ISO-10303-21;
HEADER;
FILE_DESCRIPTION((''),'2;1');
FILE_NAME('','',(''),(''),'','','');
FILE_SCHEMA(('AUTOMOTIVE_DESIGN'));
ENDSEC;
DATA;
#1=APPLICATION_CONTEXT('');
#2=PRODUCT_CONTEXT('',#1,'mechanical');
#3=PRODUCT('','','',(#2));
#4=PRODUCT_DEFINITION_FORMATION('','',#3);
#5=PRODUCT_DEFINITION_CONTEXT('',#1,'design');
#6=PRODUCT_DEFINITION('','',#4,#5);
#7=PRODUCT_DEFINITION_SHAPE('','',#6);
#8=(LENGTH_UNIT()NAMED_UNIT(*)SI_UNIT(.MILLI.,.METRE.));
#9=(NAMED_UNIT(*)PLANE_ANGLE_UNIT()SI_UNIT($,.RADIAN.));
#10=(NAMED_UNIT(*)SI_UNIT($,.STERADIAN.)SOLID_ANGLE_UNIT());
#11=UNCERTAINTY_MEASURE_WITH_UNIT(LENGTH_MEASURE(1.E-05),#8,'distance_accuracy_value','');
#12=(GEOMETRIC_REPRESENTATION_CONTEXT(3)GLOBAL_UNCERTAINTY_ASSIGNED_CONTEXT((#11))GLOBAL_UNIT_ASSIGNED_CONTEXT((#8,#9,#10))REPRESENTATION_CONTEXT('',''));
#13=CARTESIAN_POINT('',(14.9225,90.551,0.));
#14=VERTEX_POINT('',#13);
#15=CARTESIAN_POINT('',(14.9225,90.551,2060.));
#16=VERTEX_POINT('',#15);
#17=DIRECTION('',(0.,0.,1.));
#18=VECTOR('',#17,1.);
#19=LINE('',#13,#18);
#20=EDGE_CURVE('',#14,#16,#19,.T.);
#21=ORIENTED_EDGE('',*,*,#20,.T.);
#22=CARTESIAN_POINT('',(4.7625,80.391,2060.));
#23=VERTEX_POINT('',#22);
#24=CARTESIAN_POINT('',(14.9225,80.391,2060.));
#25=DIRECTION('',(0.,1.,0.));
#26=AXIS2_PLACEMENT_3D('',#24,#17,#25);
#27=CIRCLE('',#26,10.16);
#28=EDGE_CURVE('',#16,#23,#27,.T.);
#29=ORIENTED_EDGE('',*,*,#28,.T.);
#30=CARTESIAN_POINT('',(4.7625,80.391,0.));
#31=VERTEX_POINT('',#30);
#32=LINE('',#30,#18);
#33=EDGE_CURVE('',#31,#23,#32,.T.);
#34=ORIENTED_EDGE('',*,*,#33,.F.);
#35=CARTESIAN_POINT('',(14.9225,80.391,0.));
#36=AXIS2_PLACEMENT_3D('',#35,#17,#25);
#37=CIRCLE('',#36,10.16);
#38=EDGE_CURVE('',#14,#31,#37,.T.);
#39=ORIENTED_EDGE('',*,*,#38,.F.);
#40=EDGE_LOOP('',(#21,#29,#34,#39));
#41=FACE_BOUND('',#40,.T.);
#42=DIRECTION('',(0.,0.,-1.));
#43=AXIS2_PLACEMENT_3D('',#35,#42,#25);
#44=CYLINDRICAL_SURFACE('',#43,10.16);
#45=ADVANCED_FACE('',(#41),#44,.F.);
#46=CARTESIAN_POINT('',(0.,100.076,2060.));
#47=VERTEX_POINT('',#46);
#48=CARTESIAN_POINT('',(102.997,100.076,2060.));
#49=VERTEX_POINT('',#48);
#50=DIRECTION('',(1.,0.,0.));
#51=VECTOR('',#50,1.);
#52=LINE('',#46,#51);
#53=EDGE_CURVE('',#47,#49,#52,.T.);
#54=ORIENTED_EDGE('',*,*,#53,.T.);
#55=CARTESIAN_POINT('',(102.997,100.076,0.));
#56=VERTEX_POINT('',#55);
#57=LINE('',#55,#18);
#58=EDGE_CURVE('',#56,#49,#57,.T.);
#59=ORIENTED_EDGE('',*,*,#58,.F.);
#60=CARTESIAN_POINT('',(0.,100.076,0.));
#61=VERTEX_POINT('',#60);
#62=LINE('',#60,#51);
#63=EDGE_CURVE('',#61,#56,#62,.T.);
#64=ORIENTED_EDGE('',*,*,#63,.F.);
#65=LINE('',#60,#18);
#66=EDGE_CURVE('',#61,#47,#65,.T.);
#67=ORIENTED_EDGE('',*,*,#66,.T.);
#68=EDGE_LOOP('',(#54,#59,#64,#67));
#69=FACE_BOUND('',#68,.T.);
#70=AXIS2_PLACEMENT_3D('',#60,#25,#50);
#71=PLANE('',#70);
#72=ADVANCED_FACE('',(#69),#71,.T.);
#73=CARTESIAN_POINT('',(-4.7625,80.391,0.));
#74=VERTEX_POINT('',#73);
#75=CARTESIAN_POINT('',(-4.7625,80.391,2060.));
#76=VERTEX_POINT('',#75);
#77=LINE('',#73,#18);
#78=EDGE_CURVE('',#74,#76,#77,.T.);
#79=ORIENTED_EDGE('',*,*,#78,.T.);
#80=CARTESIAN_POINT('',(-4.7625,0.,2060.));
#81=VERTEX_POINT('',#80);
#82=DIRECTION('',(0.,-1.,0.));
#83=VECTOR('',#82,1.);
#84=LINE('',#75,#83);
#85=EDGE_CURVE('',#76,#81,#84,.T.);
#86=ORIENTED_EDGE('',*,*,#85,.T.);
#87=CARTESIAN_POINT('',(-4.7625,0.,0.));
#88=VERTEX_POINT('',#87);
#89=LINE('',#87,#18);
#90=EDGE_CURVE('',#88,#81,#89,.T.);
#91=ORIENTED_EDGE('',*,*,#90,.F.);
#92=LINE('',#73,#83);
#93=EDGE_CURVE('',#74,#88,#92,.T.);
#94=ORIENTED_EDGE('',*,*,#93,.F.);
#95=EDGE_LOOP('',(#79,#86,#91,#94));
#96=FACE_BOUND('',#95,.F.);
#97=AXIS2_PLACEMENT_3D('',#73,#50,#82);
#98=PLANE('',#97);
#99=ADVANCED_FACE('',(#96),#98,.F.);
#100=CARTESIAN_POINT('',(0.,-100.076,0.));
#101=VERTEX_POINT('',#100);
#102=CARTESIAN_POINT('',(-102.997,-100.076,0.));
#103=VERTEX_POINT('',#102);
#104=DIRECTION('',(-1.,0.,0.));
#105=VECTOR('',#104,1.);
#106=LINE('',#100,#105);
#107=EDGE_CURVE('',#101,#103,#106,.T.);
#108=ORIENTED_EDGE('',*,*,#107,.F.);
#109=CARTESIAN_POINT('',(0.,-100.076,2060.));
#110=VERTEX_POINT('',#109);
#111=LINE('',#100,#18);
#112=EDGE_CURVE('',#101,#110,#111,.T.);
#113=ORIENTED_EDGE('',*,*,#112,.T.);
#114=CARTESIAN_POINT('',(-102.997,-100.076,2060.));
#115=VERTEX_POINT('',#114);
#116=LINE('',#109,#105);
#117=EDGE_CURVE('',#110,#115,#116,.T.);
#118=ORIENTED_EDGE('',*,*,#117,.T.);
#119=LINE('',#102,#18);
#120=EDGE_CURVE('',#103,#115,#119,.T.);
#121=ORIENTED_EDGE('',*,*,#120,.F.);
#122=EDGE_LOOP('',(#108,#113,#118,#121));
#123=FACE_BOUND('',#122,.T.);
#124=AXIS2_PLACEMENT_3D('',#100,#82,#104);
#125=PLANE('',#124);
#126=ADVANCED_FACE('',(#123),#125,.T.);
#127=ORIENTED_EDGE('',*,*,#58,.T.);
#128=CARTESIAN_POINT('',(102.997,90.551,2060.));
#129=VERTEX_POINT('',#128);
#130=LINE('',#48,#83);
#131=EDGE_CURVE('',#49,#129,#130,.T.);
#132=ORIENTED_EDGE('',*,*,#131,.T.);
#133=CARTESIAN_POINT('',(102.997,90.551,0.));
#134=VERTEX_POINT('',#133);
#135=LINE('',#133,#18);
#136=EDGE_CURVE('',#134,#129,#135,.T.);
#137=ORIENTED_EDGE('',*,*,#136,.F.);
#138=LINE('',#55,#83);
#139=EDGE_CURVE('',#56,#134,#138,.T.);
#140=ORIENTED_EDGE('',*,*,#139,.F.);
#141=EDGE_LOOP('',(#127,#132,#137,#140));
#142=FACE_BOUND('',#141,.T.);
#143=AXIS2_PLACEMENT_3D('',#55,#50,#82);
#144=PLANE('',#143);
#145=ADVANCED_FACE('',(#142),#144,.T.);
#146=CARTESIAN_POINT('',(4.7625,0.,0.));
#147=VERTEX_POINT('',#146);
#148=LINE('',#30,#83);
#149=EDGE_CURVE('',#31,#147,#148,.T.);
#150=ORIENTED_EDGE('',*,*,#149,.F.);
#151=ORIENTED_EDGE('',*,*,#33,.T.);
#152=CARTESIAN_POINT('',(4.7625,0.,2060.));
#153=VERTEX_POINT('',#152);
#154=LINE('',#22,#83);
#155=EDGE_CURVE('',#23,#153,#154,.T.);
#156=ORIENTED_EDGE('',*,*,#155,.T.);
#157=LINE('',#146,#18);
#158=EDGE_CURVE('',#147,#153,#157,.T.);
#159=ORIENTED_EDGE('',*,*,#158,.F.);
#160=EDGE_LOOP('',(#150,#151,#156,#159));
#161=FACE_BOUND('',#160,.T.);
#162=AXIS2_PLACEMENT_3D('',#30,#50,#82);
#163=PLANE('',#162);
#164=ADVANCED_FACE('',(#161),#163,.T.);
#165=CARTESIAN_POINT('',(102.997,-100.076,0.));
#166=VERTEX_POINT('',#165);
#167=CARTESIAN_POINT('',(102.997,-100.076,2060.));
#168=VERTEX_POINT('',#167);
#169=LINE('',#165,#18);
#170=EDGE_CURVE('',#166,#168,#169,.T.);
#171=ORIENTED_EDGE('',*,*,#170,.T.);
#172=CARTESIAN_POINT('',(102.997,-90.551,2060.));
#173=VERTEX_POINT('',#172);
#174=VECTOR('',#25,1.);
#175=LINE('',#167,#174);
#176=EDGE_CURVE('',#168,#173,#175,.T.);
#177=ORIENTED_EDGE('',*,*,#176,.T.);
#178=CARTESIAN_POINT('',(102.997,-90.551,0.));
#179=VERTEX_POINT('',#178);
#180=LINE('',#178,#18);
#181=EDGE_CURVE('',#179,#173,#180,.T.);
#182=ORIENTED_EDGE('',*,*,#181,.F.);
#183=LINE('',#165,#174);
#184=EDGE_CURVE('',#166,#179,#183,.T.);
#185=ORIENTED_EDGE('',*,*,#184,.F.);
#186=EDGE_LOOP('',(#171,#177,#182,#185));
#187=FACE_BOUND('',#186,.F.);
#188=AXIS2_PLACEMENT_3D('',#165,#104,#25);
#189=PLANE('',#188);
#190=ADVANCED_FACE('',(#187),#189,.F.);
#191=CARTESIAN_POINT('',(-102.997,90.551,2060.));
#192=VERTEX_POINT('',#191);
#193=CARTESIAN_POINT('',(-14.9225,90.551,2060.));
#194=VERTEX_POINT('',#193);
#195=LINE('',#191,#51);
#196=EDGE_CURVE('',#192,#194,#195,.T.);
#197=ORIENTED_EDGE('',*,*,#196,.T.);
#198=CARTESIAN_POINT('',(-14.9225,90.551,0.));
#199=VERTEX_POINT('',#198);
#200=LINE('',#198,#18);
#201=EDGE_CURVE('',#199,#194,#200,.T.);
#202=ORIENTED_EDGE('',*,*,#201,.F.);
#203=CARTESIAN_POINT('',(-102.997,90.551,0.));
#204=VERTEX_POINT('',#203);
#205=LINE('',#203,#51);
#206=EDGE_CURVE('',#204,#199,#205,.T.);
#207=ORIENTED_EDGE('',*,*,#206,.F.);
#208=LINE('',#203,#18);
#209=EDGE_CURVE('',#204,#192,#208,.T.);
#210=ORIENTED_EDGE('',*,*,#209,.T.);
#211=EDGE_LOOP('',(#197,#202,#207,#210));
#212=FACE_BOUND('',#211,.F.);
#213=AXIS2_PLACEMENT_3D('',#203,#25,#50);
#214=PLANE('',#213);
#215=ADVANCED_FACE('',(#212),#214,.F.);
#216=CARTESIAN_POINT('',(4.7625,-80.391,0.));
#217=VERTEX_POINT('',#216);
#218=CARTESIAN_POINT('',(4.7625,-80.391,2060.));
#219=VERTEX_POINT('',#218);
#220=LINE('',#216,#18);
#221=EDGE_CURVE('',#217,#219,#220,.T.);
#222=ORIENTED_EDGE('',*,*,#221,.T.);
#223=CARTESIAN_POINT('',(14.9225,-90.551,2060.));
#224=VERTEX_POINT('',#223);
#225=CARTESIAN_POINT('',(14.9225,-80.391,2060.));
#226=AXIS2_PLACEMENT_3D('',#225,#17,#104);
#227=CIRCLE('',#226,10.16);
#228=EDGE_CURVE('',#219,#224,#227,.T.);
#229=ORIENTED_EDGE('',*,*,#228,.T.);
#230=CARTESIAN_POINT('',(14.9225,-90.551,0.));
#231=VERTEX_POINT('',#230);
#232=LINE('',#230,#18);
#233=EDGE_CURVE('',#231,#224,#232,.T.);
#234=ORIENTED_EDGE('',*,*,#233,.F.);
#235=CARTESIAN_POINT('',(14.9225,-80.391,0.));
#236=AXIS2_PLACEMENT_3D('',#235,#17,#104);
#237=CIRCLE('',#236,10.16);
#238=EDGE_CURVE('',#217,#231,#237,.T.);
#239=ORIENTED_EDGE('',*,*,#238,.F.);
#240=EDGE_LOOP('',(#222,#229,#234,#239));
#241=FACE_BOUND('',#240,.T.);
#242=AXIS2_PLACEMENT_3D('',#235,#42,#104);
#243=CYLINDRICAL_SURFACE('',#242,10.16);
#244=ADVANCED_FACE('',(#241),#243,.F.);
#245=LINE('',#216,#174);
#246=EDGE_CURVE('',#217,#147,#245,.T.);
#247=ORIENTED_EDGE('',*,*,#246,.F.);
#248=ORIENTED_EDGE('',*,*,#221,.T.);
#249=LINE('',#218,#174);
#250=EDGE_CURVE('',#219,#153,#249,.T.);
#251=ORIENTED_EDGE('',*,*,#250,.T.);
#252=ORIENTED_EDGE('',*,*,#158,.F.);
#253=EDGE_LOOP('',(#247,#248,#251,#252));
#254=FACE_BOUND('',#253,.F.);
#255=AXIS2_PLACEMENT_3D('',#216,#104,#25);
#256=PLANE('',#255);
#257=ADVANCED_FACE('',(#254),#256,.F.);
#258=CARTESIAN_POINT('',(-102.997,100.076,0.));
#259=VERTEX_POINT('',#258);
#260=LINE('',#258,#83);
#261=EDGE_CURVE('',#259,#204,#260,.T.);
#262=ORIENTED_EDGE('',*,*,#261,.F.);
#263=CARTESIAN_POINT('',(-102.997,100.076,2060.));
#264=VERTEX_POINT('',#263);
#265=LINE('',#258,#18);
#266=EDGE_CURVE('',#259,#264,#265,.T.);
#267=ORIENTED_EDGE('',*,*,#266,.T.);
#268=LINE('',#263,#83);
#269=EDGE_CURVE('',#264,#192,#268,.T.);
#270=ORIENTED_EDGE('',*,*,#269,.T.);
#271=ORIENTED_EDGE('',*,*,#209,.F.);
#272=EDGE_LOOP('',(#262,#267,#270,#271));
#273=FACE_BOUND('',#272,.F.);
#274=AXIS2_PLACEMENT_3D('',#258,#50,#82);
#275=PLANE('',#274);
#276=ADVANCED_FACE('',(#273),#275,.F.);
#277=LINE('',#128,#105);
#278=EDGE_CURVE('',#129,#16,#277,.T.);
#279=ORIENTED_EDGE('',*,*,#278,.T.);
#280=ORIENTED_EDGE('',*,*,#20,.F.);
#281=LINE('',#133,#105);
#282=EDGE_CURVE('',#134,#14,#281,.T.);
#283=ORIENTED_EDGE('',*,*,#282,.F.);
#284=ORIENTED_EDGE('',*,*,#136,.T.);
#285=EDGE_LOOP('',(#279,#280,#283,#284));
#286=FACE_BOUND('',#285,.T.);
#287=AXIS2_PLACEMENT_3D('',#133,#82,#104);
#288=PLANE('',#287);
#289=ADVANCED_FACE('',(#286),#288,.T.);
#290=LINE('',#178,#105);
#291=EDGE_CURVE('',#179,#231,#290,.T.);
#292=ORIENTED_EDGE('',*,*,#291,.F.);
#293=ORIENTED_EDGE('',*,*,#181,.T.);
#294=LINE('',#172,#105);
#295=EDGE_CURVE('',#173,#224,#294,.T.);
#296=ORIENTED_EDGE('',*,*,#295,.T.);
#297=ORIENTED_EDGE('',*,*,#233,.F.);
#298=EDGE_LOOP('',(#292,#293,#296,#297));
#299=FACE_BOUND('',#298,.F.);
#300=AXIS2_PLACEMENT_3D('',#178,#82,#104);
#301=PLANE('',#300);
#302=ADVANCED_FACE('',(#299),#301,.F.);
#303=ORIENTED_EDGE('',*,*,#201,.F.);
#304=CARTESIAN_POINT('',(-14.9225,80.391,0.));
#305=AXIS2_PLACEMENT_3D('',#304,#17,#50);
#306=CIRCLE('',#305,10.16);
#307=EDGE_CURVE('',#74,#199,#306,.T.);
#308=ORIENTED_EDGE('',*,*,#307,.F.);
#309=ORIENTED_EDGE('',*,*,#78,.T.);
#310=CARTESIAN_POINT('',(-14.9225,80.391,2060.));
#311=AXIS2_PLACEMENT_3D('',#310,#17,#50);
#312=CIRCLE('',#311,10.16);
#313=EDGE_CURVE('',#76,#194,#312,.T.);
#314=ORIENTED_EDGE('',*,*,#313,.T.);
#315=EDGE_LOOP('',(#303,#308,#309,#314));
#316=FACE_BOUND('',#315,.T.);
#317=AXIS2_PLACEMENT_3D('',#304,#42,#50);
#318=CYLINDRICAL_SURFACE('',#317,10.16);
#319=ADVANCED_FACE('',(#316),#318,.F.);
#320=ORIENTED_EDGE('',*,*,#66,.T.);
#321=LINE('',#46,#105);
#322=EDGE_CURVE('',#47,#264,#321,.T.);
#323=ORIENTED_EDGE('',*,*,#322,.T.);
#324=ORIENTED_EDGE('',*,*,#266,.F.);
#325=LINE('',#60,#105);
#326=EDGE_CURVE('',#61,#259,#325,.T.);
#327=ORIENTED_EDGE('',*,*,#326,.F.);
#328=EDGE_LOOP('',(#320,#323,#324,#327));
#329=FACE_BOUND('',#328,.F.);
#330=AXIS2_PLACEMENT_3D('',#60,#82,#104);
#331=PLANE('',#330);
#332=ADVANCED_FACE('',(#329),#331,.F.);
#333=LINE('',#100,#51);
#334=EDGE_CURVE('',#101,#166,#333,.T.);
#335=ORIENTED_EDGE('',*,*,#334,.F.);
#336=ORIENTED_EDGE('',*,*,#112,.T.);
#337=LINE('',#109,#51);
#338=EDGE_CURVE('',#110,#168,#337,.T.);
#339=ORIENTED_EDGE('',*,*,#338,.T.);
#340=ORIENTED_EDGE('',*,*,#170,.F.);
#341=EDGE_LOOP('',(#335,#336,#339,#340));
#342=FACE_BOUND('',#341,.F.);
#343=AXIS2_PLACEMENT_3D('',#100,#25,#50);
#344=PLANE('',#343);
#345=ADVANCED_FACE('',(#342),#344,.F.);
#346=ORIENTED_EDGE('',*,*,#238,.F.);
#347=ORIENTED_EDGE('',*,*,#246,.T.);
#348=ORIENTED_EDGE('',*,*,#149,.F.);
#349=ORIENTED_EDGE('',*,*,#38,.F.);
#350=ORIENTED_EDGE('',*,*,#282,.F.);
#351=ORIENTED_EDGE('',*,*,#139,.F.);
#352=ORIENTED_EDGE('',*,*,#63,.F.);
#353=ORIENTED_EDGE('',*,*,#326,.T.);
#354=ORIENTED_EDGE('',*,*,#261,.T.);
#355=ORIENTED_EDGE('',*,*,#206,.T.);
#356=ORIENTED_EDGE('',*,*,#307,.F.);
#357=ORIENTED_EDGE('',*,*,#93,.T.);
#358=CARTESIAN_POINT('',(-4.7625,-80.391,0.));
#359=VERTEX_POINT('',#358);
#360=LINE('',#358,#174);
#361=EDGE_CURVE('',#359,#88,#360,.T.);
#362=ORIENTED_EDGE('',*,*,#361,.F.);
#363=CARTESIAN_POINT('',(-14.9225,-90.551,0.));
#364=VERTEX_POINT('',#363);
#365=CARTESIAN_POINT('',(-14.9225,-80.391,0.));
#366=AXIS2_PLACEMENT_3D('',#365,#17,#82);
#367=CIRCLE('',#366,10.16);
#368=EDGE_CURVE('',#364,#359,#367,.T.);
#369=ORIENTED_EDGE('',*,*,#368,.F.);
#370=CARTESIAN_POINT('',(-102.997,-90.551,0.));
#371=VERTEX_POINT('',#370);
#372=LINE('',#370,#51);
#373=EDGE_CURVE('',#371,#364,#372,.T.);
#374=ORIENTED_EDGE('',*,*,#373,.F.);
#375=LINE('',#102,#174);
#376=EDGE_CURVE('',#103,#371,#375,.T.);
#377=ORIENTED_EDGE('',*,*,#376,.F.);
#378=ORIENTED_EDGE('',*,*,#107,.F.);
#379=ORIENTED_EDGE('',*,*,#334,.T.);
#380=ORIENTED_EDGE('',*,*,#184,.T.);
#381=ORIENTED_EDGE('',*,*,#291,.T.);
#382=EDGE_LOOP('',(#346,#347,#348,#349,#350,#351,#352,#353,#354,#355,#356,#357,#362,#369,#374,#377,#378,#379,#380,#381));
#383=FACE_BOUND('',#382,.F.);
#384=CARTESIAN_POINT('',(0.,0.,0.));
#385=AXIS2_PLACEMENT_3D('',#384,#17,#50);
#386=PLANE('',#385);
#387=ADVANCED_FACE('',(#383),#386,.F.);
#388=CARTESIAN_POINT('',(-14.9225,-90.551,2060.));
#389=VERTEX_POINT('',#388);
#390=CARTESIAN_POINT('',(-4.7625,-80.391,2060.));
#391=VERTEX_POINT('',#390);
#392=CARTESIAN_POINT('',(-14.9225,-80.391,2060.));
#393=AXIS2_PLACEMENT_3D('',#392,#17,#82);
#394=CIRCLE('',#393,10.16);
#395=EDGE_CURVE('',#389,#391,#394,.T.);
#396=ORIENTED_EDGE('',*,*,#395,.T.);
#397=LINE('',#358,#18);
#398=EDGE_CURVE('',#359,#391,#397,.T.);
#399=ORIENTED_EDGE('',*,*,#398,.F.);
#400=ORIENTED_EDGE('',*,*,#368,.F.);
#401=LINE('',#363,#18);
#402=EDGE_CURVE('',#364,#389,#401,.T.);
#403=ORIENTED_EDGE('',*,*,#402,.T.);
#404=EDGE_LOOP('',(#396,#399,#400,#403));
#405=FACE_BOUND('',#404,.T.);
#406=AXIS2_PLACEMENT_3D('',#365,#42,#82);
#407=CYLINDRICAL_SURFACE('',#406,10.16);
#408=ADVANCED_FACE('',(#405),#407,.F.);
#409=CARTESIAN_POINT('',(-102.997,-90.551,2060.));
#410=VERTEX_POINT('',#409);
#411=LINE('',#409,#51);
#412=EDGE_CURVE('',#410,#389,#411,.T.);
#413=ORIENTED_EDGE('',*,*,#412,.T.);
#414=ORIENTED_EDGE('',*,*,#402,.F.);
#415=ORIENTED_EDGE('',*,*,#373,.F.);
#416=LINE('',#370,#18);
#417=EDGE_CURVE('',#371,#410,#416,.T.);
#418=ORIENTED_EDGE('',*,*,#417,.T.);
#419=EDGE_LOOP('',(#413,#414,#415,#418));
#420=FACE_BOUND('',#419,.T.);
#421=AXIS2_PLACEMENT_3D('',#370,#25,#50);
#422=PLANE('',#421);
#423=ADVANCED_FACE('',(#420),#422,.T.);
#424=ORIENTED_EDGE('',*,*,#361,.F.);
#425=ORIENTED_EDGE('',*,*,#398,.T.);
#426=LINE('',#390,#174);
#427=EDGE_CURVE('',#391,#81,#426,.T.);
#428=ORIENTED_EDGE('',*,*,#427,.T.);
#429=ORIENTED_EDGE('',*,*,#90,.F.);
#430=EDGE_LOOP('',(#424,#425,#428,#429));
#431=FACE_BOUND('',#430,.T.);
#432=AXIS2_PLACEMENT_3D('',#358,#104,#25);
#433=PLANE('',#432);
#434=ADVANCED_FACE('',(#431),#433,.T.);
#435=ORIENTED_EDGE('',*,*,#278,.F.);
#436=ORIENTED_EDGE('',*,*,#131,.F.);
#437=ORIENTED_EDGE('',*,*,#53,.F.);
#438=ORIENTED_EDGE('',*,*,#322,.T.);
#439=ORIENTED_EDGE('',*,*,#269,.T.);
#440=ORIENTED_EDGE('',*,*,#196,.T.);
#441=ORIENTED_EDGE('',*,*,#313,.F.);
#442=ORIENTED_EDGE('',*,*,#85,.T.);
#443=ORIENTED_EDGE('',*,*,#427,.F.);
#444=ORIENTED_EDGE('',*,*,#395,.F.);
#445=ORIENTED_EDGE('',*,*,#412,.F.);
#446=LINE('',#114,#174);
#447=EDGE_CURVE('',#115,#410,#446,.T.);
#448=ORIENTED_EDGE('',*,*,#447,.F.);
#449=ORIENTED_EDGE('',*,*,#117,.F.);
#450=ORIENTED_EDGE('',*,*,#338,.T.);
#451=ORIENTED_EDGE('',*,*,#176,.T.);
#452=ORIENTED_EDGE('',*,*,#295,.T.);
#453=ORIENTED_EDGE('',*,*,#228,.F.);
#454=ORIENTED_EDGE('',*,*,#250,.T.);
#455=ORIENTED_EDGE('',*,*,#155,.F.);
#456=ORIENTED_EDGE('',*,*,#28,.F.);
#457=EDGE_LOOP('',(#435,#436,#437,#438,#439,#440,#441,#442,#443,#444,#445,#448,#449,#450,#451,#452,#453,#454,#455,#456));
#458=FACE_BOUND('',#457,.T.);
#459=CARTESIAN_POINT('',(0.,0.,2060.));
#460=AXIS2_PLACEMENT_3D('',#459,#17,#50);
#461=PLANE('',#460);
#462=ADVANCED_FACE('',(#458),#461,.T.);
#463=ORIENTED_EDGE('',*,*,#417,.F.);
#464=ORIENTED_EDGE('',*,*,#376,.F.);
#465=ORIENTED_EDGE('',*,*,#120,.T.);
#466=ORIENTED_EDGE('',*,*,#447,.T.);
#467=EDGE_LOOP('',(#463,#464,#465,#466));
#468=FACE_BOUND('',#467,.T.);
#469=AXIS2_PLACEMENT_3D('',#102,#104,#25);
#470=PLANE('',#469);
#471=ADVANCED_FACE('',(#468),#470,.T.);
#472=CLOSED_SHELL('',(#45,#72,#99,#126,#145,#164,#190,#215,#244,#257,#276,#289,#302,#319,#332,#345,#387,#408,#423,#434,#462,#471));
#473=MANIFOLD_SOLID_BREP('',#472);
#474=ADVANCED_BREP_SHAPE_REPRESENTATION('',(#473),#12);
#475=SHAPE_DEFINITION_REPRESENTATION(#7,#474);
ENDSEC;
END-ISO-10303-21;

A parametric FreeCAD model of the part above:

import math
import FreeCAD as App
import Part
import Sketcher
from FreeCAD import Vector
Q = App.Units.Quantity

doc = App.newDocument("Part")
body = doc.addObject("PartDesign::Body", "Body")

# Sketch on XY plane
sketch1 = body.newObject("Sketcher::SketchObject", "Sketch")
sketch1.AttachmentSupport = (doc.getObject("XY_Plane"), [""])
sketch1.MapMode = "FlatFace"
sketch1.addGeometry([
    Part.LineSegment(Vector(-102.997, -90.551, 0), Vector(-102.997, -100.076, 0)),  # 0
    Part.LineSegment(Vector(-102.997, -100.076, 0), Vector(102.997, -100.076, 0)),  # 1
    Part.LineSegment(Vector(102.997, -100.076, 0), Vector(102.997, -90.551, 0)),  # 2
    Part.LineSegment(Vector(102.997, -90.551, 0), Vector(14.9225, -90.551, 0)),  # 3
    Part.ArcOfCircle(Part.Circle(Vector(14.9225, -80.391, 0), Vector(0, 0, 1), 10.16), math.radians(180), math.radians(270)),  # 4
    Part.LineSegment(Vector(4.7625, -80.391, 0), Vector(4.7625, 80.391, 0)),  # 5
    Part.ArcOfCircle(Part.Circle(Vector(14.9225, 80.391, 0), Vector(0, 0, 1), 10.16), math.radians(90), math.radians(180)),  # 6
    Part.LineSegment(Vector(14.9225, 90.551, 0), Vector(102.997, 90.551, 0)),  # 7
    Part.LineSegment(Vector(102.997, 90.551, 0), Vector(102.997, 100.076, 0)),  # 8
    Part.LineSegment(Vector(102.997, 100.076, 0), Vector(-102.997, 100.076, 0)),  # 9
    Part.LineSegment(Vector(-102.997, 100.076, 0), Vector(-102.997, 90.551, 0)),  # 10
    Part.LineSegment(Vector(-102.997, 90.551, 0), Vector(-14.9225, 90.551, 0)),  # 11
    Part.ArcOfCircle(Part.Circle(Vector(-14.9225, 80.391, 0), Vector(0, 0, 1), 10.16), math.radians(0), math.radians(90)),  # 12
    Part.LineSegment(Vector(-4.7625, 80.391, 0), Vector(-4.7625, -80.391, 0)),  # 13
    Part.ArcOfCircle(Part.Circle(Vector(-14.9225, -80.391, 0), Vector(0, 0, 1), 10.16), math.radians(-90), math.radians(0)),  # 14
    Part.LineSegment(Vector(-14.9225, -90.551, 0), Vector(-102.997, -90.551, 0)),  # 15
], False)
sketch1.addConstraint([
    Sketcher.Constraint("Coincident", 0, 2, 1, 1),
    Sketcher.Constraint("Coincident", 1, 2, 2, 1),
    Sketcher.Constraint("Coincident", 2, 2, 3, 1),
    Sketcher.Constraint("Tangent", 3, 2, 4, 2),
    Sketcher.Constraint("Tangent", 4, 1, 5, 1),
    Sketcher.Constraint("Tangent", 5, 2, 6, 2),
    Sketcher.Constraint("Tangent", 6, 1, 7, 1),
    Sketcher.Constraint("Coincident", 7, 2, 8, 1),
    Sketcher.Constraint("Coincident", 8, 2, 9, 1),
    Sketcher.Constraint("Coincident", 9, 2, 10, 1),
    Sketcher.Constraint("Coincident", 10, 2, 11, 1),
    Sketcher.Constraint("Tangent", 11, 2, 12, 2),
    Sketcher.Constraint("Tangent", 12, 1, 13, 1),
    Sketcher.Constraint("Tangent", 13, 2, 14, 2),
    Sketcher.Constraint("Tangent", 14, 1, 15, 1),
    Sketcher.Constraint("Coincident", 15, 2, 0, 1),
    Sketcher.Constraint("Vertical", 0),
    Sketcher.Constraint("Horizontal", 1),
    Sketcher.Constraint("Vertical", 2),
    Sketcher.Constraint("Horizontal", 3),
    Sketcher.Constraint("Vertical", 5),
    Sketcher.Constraint("Horizontal", 7),
    Sketcher.Constraint("Vertical", 8),
    Sketcher.Constraint("Horizontal", 9),
    Sketcher.Constraint("Vertical", 10),
    Sketcher.Constraint("Horizontal", 11),
    Sketcher.Constraint("Vertical", 13),
    Sketcher.Constraint("Horizontal", 15),
    Sketcher.Constraint("Equal", 4, 6),
    Sketcher.Constraint("Equal", 6, 12),
    Sketcher.Constraint("Equal", 12, 14),
    Sketcher.Constraint("Symmetric", 4, 3, 12, 3, -1, 1),
    Sketcher.Constraint("Symmetric", 0, 2, 8, 2, -1, 1),
    Sketcher.Constraint("Symmetric", 7, 2, 10, 2, -2),
    Sketcher.Constraint("Symmetric", 2, 2, 15, 2, -2),
    Sketcher.Constraint("Radius", 4, Q("0.4 in")),
    Sketcher.Constraint("DistanceY", 0, 2, 0, 1, Q("0.375 in")),
    Sketcher.Constraint("DistanceY", 0, 2, -1, 1, Q("3.94 in")),
    Sketcher.Constraint("DistanceX", 0, 2, -1, 1, Q("4.055 in")),
    Sketcher.Constraint("DistanceX", -1, 1, 4, 1, Q("0.1875 in")),
])
pad1 = body.newObject("PartDesign::Pad", "Pad")
pad1.Profile = sketch1
pad1.Length = 2060

doc.recompute()
